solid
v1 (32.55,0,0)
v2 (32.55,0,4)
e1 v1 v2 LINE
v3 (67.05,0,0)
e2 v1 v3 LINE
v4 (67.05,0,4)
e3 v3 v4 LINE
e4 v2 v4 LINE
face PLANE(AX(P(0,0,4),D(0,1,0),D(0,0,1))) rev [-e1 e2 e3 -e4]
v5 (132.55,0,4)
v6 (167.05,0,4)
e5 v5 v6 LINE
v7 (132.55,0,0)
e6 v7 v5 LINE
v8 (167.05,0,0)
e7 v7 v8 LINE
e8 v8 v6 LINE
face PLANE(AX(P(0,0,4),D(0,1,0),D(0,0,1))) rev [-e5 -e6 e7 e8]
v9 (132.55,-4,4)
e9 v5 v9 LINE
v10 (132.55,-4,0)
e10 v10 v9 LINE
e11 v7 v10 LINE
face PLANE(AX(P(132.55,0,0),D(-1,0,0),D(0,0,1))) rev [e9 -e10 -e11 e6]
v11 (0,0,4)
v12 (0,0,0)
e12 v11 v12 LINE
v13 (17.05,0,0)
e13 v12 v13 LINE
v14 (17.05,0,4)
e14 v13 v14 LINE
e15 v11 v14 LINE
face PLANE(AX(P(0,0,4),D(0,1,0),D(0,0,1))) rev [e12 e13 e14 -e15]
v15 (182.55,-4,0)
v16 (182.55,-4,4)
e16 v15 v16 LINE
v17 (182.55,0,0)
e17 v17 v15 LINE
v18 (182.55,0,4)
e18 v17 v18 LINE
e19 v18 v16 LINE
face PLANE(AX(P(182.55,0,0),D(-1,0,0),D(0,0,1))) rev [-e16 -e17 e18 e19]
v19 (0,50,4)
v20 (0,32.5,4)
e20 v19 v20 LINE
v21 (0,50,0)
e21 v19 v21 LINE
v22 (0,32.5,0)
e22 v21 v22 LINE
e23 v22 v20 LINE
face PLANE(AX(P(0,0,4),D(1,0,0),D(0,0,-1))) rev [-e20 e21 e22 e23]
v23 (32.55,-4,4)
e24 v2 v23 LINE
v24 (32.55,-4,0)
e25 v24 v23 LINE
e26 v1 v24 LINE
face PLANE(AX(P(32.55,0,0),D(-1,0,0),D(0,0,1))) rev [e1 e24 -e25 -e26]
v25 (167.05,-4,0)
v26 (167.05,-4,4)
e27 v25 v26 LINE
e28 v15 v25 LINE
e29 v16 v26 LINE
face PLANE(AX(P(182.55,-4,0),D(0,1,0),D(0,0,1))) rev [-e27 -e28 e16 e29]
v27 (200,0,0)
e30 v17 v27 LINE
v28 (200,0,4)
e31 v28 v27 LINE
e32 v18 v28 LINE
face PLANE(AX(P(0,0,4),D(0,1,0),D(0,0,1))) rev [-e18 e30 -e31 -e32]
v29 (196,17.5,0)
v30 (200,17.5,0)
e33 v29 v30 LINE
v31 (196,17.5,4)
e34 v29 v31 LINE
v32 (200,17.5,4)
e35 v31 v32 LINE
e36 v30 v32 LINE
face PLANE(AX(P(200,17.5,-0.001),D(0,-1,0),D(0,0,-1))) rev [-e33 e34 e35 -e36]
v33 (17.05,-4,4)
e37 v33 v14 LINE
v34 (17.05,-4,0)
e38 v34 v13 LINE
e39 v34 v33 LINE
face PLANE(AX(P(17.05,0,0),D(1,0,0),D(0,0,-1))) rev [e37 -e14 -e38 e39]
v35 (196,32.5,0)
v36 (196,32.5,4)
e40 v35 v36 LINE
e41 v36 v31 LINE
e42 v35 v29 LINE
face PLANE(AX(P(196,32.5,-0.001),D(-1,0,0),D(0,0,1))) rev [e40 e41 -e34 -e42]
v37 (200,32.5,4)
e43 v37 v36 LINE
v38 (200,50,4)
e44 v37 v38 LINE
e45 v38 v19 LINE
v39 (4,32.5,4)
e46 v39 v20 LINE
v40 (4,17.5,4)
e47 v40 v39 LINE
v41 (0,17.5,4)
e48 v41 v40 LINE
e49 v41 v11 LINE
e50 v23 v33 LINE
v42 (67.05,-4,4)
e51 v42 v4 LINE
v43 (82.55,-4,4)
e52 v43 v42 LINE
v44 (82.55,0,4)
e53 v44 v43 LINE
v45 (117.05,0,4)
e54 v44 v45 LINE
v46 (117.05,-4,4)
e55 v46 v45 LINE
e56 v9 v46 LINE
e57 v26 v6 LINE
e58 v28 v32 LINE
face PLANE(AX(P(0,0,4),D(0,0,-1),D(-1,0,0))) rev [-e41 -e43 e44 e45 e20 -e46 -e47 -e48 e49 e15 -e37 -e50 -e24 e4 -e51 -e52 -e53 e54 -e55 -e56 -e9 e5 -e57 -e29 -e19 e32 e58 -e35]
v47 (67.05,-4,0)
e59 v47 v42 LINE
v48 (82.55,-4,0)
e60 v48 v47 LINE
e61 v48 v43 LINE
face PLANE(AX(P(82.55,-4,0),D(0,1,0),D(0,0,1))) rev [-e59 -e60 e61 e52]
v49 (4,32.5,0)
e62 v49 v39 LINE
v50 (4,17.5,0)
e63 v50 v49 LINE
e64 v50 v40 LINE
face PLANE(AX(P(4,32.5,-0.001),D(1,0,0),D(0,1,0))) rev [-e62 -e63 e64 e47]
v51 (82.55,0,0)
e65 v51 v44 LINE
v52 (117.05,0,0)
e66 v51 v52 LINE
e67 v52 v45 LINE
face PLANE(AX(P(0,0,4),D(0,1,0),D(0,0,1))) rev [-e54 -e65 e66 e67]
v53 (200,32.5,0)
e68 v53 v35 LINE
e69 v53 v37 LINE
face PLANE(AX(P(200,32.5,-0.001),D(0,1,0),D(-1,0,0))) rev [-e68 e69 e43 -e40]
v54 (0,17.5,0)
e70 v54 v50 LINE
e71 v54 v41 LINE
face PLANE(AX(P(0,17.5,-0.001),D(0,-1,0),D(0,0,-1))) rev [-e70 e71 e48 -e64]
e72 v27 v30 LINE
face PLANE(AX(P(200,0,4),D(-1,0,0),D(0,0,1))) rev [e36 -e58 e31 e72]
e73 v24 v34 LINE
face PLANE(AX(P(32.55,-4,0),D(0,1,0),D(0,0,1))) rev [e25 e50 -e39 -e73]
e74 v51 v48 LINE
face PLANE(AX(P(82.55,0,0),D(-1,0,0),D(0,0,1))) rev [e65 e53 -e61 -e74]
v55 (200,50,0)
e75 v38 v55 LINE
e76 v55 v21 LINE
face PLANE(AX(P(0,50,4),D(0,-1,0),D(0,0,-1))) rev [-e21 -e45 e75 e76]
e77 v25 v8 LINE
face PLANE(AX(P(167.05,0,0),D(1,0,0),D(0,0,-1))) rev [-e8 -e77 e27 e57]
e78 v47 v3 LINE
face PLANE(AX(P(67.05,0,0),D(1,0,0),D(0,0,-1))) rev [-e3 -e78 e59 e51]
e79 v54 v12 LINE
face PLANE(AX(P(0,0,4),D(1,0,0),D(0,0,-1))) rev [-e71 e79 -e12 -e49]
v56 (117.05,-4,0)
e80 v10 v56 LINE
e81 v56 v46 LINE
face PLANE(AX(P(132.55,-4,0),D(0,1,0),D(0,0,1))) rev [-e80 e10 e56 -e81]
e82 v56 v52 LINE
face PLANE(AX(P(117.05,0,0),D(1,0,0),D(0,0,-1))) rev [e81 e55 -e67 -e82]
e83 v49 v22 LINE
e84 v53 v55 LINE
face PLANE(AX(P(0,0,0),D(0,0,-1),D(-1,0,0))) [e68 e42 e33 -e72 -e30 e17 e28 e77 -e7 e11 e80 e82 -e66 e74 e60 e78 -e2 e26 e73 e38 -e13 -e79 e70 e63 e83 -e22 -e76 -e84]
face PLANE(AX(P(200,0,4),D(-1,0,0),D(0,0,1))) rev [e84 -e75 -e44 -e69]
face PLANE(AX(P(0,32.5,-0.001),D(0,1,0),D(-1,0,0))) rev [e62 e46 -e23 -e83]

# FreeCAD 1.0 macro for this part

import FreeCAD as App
import Part
import Sketcher

V = App.Vector
Q = App.Units.Quantity

doc = App.newDocument("Part")
body = doc.addObject("PartDesign::Body", "Body")

sketch1 = body.newObject("Sketcher::SketchObject", "Sketch")
sketch1.AttachmentSupport = (doc.getObject("XY_Plane"), [""])
sketch1.MapMode = "FlatFace"
sketch1.addGeometry([
    Part.LineSegment(V(0, 50, 0), V(0, 0, 0)),
    Part.LineSegment(V(0, 0, 0), V(200, 0, 0)),
    Part.LineSegment(V(200, 0, 0), V(200, 50, 0)),
    Part.LineSegment(V(200, 50, 0), V(0, 50, 0)),
], False)
sketch1.addConstraint([
    Sketcher.Constraint("Coincident", 0, 2, 1, 1),
    Sketcher.Constraint("Coincident", 1, 2, 2, 1),
    Sketcher.Constraint("Coincident", 2, 2, 3, 1),
    Sketcher.Constraint("Coincident", 3, 2, 0, 1),
    Sketcher.Constraint("Vertical", 0),
    Sketcher.Constraint("Horizontal", 1),
    Sketcher.Constraint("Vertical", 2),
    Sketcher.Constraint("Horizontal", 3),
    Sketcher.Constraint("Coincident", 0, 2, -1, 1),
    Sketcher.Constraint("DistanceX", 1, 1, 1, 2, Q("200 mm")),
    Sketcher.Constraint("DistanceY", 0, 2, 0, 1, Q("50 mm")),
])
pad1 = body.newObject("PartDesign::Pad", "Pad")
pad1.Profile = sketch1
pad1.Length = 4

sketch2 = body.newObject("Sketcher::SketchObject", "Sketch001")
sketch2.AttachmentSupport = (doc.getObject("XY_Plane"), [""])
sketch2.MapMode = "FlatFace"
sketch2.AttachmentOffset = App.Placement(V(0, 0, 4), App.Rotation())
sketch2.addGeometry([
    Part.LineSegment(V(182.55, 0, 0), V(182.55, -4, 0)),
    Part.LineSegment(V(182.55, -4, 0), V(167.05, -4, 0)),
    Part.LineSegment(V(167.05, -4, 0), V(167.05, 0, 0)),
    Part.LineSegment(V(167.05, 0, 0), V(182.55, 0, 0)),
    Part.LineSegment(V(132.55, 0, 0), V(132.55, -4, 0)),
    Part.LineSegment(V(132.55, -4, 0), V(117.05, -4, 0)),
    Part.LineSegment(V(117.05, -4, 0), V(117.05, 0, 0)),
    Part.LineSegment(V(117.05, 0, 0), V(132.55, 0, 0)),
    Part.LineSegment(V(82.55, 0, 0), V(82.55, -4, 0)),
    Part.LineSegment(V(82.55, -4, 0), V(67.05, -4, 0)),
    Part.LineSegment(V(67.05, -4, 0), V(67.05, 0, 0)),
    Part.LineSegment(V(67.05, 0, 0), V(82.55, 0, 0)),
    Part.LineSegment(V(32.55, 0, 0), V(32.55, -4, 0)),
    Part.LineSegment(V(32.55, -4, 0), V(17.05, -4, 0)),
    Part.LineSegment(V(17.05, -4, 0), V(17.05, 0, 0)),
    Part.LineSegment(V(17.05, 0, 0), V(32.55, 0, 0)),
], False)
sketch2.addConstraint([
    Sketcher.Constraint("Coincident", 0, 2, 1, 1),
    Sketcher.Constraint("Coincident", 1, 2, 2, 1),
    Sketcher.Constraint("Coincident", 2, 2, 3, 1),
    Sketcher.Constraint("Coincident", 3, 2, 0, 1),
    Sketcher.Constraint("Coincident", 4, 2, 5, 1),
    Sketcher.Constraint("Coincident", 5, 2, 6, 1),
    Sketcher.Constraint("Coincident", 6, 2, 7, 1),
    Sketcher.Constraint("Coincident", 7, 2, 4, 1),
    Sketcher.Constraint("Coincident", 8, 2, 9, 1),
    Sketcher.Constraint("Coincident", 9, 2, 10, 1),
    Sketcher.Constraint("Coincident", 10, 2, 11, 1),
    Sketcher.Constraint("Coincident", 11, 2, 8, 1),
    Sketcher.Constraint("Coincident", 12, 2, 13, 1),
    Sketcher.Constraint("Coincident", 13, 2, 14, 1),
    Sketcher.Constraint("Coincident", 14, 2, 15, 1),
    Sketcher.Constraint("Coincident", 15, 2, 12, 1),
    Sketcher.Constraint("Vertical", 0),
    Sketcher.Constraint("Horizontal", 1),
    Sketcher.Constraint("Vertical", 2),
    Sketcher.Constraint("Horizontal", 3),
    Sketcher.Constraint("Vertical", 4),
    Sketcher.Constraint("Horizontal", 5),
    Sketcher.Constraint("Vertical", 6),
    Sketcher.Constraint("Horizontal", 7),
    Sketcher.Constraint("Vertical", 8),
    Sketcher.Constraint("Horizontal", 9),
    Sketcher.Constraint("Vertical", 10),
    Sketcher.Constraint("Horizontal", 11),
    Sketcher.Constraint("Vertical", 12),
    Sketcher.Constraint("Horizontal", 13),
    Sketcher.Constraint("Vertical", 14),
    Sketcher.Constraint("Horizontal", 15),
    Sketcher.Constraint("PointOnObject", 2, 2, -1),
    Sketcher.Constraint("PointOnObject", 6, 2, -1),
    Sketcher.Constraint("PointOnObject", 10, 2, -1),
    Sketcher.Constraint("PointOnObject", 14, 2, -1),
    Sketcher.Constraint("Horizontal", 1, 2, 4, 2),
    Sketcher.Constraint("Horizontal", 5, 2, 8, 2),
    Sketcher.Constraint("Horizontal", 9, 2, 12, 2),
    Sketcher.Constraint("Equal", 3, 5),
    Sketcher.Constraint("Equal", 7, 9),
    Sketcher.Constraint("Equal", 11, 13),
    Sketcher.Constraint("DistanceY", 0, 2, 0, 1, Q("4 mm")),
    Sketcher.Constraint("DistanceX", 1, 2, 1, 1, Q("15.5 mm")),
    Sketcher.Constraint("DistanceX", 4, 2, 0, 2, Q("50 mm")),
    Sketcher.Constraint("DistanceX", 8, 2, 4, 2, Q("50 mm")),
    Sketcher.Constraint("DistanceX", 12, 2, 8, 2, Q("50 mm")),
    Sketcher.Constraint("DistanceX", -1, 1, 0, 2, Q("182.55 mm")),
])
pad2 = body.newObject("PartDesign::Pad", "Pad001")
pad2.Profile = sketch2
pad2.Length = 4
pad2.Reversed = True

sketch3 = body.newObject("Sketcher::SketchObject", "Sketch002")
sketch3.AttachmentSupport = (doc.getObject("XY_Plane"), [""])
sketch3.MapMode = "FlatFace"
sketch3.AttachmentOffset = App.Placement(V(0, 0, 4), App.Rotation())
sketch3.addGeometry([
    Part.LineSegment(V(0, 32.5, 0), V(0, 17.5, 0)),
    Part.LineSegment(V(0, 17.5, 0), V(4, 17.5, 0)),
    Part.LineSegment(V(4, 17.5, 0), V(4, 32.5, 0)),
    Part.LineSegment(V(4, 32.5, 0), V(0, 32.5, 0)),
], False)
sketch3.addConstraint([
    Sketcher.Constraint("Coincident", 0, 2, 1, 1),
    Sketcher.Constraint("Coincident", 1, 2, 2, 1),
    Sketcher.Constraint("Coincident", 2, 2, 3, 1),
    Sketcher.Constraint("Coincident", 3, 2, 0, 1),
    Sketcher.Constraint("Vertical", 0),
    Sketcher.Constraint("Horizontal", 1),
    Sketcher.Constraint("Vertical", 2),
    Sketcher.Constraint("Horizontal", 3),
    Sketcher.Constraint("PointOnObject", 0, 2, -2),
    Sketcher.Constraint("DistanceX", 1, 1, 1, 2, Q("4 mm")),
    Sketcher.Constraint("DistanceY", 0, 2, 0, 1, Q("15 mm")),
    Sketcher.Constraint("DistanceY", -1, 1, 0, 2, Q("17.5 mm")),
])
pocket1 = body.newObject("PartDesign::Pocket", "Pocket")
pocket1.Profile = sketch3
pocket1.Type = "UpToFirst"

sketch4 = body.newObject("Sketcher::SketchObject", "Sketch003")
sketch4.AttachmentSupport = (doc.getObject("XY_Plane"), [""])
sketch4.MapMode = "FlatFace"
sketch4.AttachmentOffset = App.Placement(V(0, 0, 4), App.Rotation())
sketch4.addGeometry([
    Part.LineSegment(V(196, 32.5, 0), V(196, 17.5, 0)),
    Part.LineSegment(V(196, 17.5, 0), V(200, 17.5, 0)),
    Part.LineSegment(V(200, 17.5, 0), V(200, 32.5, 0)),
    Part.LineSegment(V(200, 32.5, 0), V(196, 32.5, 0)),
], False)
sketch4.addConstraint([
    Sketcher.Constraint("Coincident", 0, 2, 1, 1),
    Sketcher.Constraint("Coincident", 1, 2, 2, 1),
    Sketcher.Constraint("Coincident", 2, 2, 3, 1),
    Sketcher.Constraint("Coincident", 3, 2, 0, 1),
    Sketcher.Constraint("Vertical", 0),
    Sketcher.Constraint("Horizontal", 1),
    Sketcher.Constraint("Vertical", 2),
    Sketcher.Constraint("Horizontal", 3),
    Sketcher.Constraint("DistanceX", 1, 1, 1, 2, Q("4 mm")),
    Sketcher.Constraint("DistanceY", 0, 2, 0, 1, Q("15 mm")),
    Sketcher.Constraint("DistanceX", -1, 1, 0, 2, Q("196 mm")),
    Sketcher.Constraint("DistanceY", -1, 1, 0, 2, Q("17.5 mm")),
])
pocket2 = body.newObject("PartDesign::Pocket", "Pocket001")
pocket2.Profile = sketch4
pocket2.Type = "UpToFirst"

doc.recompute()
